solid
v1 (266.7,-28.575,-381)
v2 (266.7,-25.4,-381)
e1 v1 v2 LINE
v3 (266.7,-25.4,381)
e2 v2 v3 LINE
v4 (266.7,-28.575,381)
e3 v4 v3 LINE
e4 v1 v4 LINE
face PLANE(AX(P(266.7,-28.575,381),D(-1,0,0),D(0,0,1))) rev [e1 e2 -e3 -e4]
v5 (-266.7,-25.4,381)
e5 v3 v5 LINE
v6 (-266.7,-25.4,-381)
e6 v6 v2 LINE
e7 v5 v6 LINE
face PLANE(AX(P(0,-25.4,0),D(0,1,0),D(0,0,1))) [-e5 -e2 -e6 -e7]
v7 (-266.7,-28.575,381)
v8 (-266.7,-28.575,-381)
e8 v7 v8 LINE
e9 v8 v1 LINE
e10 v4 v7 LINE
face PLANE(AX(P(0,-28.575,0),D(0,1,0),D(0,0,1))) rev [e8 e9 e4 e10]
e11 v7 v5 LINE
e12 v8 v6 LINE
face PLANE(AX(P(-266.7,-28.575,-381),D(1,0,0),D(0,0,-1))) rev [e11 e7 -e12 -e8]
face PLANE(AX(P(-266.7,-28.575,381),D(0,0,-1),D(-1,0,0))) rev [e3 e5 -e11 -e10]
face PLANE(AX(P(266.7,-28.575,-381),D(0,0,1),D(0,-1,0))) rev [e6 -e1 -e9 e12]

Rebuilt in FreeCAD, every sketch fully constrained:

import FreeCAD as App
import Part
import Sketcher
from FreeCAD import Vector
Q = App.Units.Quantity


def add_polygon(sketch, points):
    """Adds a closed chain of lines whose ends are joined by coincident constraints."""
    first, n = sketch.GeometryCount, len(points)
    for a, b in zip(points, points[1:] + points[:1]):
        sketch.addGeometry(Part.LineSegment(App.Vector(*a, 0), App.Vector(*b, 0)), False)
    for i in range(n):
        sketch.addConstraint(Sketcher.Constraint("Coincident", first + i, 2, first + (i + 1) % n, 1))

doc = App.newDocument("Part")
body = doc.addObject("PartDesign::Body", "Body")

sketch1 = doc.addObject("Sketcher::SketchObject", "Sketch")
body.addObject(sketch1)
sketch1.AttachmentSupport = (doc.XZ_Plane, [""])
sketch1.MapMode = "FlatFace"
sketch1.AttachmentOffset = App.Placement(Vector(0, 0, 1 * 25.4), App.Rotation())
add_polygon(sketch1, [(267, -381), (267, 381), (-267, 381), (-267, -381)])
sketch1.addConstraint([
    Sketcher.Constraint("Vertical", 0),
    Sketcher.Constraint("Horizontal", 1),
    Sketcher.Constraint("Vertical", 2),
    Sketcher.Constraint("Horizontal", 3),
    Sketcher.Constraint("Symmetric", 0, 2, 2, 2, -1, 1),
    Sketcher.Constraint("DistanceX", 1, 2, 1, 1, Q("21 in")),
    Sketcher.Constraint("DistanceY", 0, 1, 0, 2, Q("30 in")),
])
pad1 = doc.addObject("PartDesign::Pad", "Pad")
body.addObject(pad1)
pad1.Profile = sketch1
pad1.Length = Q("0.125 in")

doc.recompute()
